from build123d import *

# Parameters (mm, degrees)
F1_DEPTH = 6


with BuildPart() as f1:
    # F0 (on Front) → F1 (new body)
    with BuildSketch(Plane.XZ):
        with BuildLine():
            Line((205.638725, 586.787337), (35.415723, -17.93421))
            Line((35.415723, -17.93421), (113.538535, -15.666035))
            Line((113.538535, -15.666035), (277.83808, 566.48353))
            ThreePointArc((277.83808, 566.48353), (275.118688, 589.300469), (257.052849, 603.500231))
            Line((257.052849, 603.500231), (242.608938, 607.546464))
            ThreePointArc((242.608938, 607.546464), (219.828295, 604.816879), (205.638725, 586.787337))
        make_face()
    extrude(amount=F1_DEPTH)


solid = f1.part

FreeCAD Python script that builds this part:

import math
import FreeCAD as App
import Part
import Sketcher
Q = App.Units.Quantity

doc = App.newDocument("Part")
body = doc.addObject("PartDesign::Body", "Body")

# Sketch on XZ plane
sketch1 = body.newObject("Sketcher::SketchObject", "Sketch")
sketch1.AttachmentSupport = (doc.getObject("XZ_Plane"), [""])
sketch1.MapMode = "FlatFace"
sketch1.addGeometry(Part.LineSegment(App.Vector(206, 587, 0), App.Vector(35, -18, 0)), False)
sketch1.addGeometry(Part.LineSegment(App.Vector(35, -18, 0), App.Vector(114, -16, 0)), False)
sketch1.addGeometry(Part.LineSegment(App.Vector(114, -16, 0), App.Vector(278, 566, 0)), False)
sketch1.addGeometry(Part.ArcOfCircle(Part.Circle(App.Vector(249, 575, 0), App.Vector(0, 0, 1), 30), math.radians(-16), math.radians(74)), False)
sketch1.addGeometry(Part.LineSegment(App.Vector(257, 604, 0), App.Vector(243, 608, 0)), False)
sketch1.addGeometry(Part.ArcOfCircle(Part.Circle(App.Vector(235, 579, 0), App.Vector(0, 0, 1), 30), math.radians(74), math.radians(164)), False)
sketch1.addConstraint(Sketcher.Constraint("Coincident", 0, 2, 1, 1))
sketch1.addConstraint(Sketcher.Constraint("Coincident", 1, 2, 2, 1))
sketch1.addConstraint(Sketcher.Constraint("Coincident", 2, 2, 3, 1))
sketch1.addConstraint(Sketcher.Constraint("Tangent", 3, 2, 4, 1))
sketch1.addConstraint(Sketcher.Constraint("Tangent", 4, 2, 5, 1))
sketch1.addConstraint(Sketcher.Constraint("Tangent", 5, 2, 0, 1))
sketch1.addConstraint(Sketcher.Constraint("Radius", 3, Q("29.999998 mm")))
sketch1.addConstraint(Sketcher.Constraint("Radius", 5, Q("30 mm")))
sketch1.addConstraint(Sketcher.Constraint("DistanceX", 5, 3, 3, 2, Q("22.536402 mm")))
sketch1.addConstraint(Sketcher.Constraint("DistanceY", 2, 2, 3, 2, Q("37.016701 mm")))
sketch1.addConstraint(Sketcher.Constraint("DistanceY", 1, 2, 4, 2, Q("623.212499 mm")))
sketch1.addConstraint(Sketcher.Constraint("Distance", 1, Q("78.155732 mm")))
sketch1.addConstraint(Sketcher.Constraint("Distance", 2, Q("604.89045 mm")))
sketch1.addConstraint(Sketcher.Constraint("DistanceX", -1, 1, 3, 3, Q("248.96036 mm")))
sketch1.addConstraint(Sketcher.Constraint("DistanceY", -1, 1, 5, 3, Q("578.658549 mm")))
sketch1.addConstraint(Sketcher.Constraint("DistanceY", 0, 2, -1, 1, Q("17.93421 mm")))
sketch1.addConstraint(Sketcher.Constraint("DistanceX", -1, 1, 2, 2, Q("277.83808 mm")))
pad1 = body.newObject("PartDesign::Pad", "Pad")
pad1.Profile = sketch1
pad1.Length = 6

doc.recompute()
